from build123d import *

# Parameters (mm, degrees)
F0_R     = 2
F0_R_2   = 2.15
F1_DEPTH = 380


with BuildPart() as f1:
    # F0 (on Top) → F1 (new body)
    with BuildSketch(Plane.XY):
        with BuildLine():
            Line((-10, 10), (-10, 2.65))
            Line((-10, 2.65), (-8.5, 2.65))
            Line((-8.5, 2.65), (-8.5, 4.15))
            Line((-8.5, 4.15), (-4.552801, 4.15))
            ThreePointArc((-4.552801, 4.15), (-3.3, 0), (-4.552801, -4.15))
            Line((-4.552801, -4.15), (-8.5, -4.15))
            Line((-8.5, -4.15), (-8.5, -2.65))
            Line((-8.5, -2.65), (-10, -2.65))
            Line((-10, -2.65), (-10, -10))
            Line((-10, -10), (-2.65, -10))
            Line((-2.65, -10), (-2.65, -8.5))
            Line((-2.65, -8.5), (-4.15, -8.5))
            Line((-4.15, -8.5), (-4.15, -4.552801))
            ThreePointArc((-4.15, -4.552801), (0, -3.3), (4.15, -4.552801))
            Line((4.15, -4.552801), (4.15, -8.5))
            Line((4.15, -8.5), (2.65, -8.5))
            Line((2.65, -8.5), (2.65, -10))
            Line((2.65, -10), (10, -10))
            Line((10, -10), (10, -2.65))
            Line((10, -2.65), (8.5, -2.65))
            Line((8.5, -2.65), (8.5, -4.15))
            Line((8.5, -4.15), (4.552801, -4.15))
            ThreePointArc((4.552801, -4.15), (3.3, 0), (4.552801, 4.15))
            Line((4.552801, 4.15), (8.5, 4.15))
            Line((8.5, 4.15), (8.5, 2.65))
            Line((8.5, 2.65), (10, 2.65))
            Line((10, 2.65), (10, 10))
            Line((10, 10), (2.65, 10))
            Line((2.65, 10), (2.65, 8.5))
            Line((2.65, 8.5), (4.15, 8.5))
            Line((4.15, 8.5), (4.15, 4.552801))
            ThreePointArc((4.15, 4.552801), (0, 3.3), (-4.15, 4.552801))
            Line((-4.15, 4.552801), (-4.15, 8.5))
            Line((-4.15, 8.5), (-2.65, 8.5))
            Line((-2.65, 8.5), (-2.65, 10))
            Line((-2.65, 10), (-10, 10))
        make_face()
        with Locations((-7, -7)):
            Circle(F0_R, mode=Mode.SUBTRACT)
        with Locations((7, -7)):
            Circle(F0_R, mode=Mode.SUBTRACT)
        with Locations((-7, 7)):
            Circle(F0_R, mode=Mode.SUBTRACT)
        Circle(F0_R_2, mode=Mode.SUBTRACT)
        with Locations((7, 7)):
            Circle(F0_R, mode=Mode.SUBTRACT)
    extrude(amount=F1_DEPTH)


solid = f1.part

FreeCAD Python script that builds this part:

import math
import FreeCAD as App
import Part
import Sketcher

V = App.Vector
Q = App.Units.Quantity

doc = App.newDocument("Part")
params = doc.addObject("Spreadsheet::Sheet", "Params")
for row, (alias, value) in enumerate([
    ("sketch1_diameter", "4 mm"),
    ("sketch1_diameter2", "4.3 mm"),
    ("sketch1_radius", "7.499998 mm"),
    ("sketch1_width", "1.5 mm"),
    ("sketch1_width2", "7.35 mm"),
    ("pad1_length", "380 mm"),
], start=1):
    params.set(f"A{row}", alias)
    params.set(f"B{row}", "=" + value)
    params.setAlias(f"B{row}", alias)

body = doc.addObject("PartDesign::Body", "Body")

# Sketch on XY plane
sketch1 = body.newObject("Sketcher::SketchObject", "Sketch")
sketch1.AttachmentSupport = (doc.getObject("XY_Plane"), [""])
sketch1.MapMode = "FlatFace"
sketch1.addGeometry([
    Part.LineSegment(V(-10, 10, 0), V(-10, 2.6, 0)),  # 0
    Part.LineSegment(V(-10, 2.6, 0), V(-8.5, 2.6, 0)),  # 1
    Part.LineSegment(V(-8.5, 2.6, 0), V(-8.5, 4.2, 0)),  # 2
    Part.LineSegment(V(-8.5, 4.2, 0), V(-4.6, 4.2, 0)),  # 3
    Part.ArcOfCircle(Part.Circle(V(-10.8, 0, 0), V(0, 0, 1), 7.5), math.radians(-34), math.radians(34)),  # 4
    Part.LineSegment(V(-4.6, -4.2, 0), V(-8.5, -4.2, 0)),  # 5
    Part.LineSegment(V(-8.5, -4.2, 0), V(-8.5, -2.6, 0)),  # 6
    Part.LineSegment(V(-8.5, -2.6, 0), V(-10, -2.6, 0)),  # 7
    Part.LineSegment(V(-10, -2.6, 0), V(-10, -10, 0)),  # 8
    Part.LineSegment(V(-10, -10, 0), V(-2.6, -10, 0)),  # 9
    Part.LineSegment(V(-2.6, -10, 0), V(-2.6, -8.5, 0)),  # 10
    Part.LineSegment(V(-2.6, -8.5, 0), V(-4.2, -8.5, 0)),  # 11
    Part.LineSegment(V(-4.2, -8.5, 0), V(-4.2, -4.6, 0)),  # 12
    Part.ArcOfCircle(Part.Circle(V(0, -10.8, 0), V(0, 0, 1), 7.5), math.radians(56), math.radians(124)),  # 13
    Part.LineSegment(V(4.2, -4.6, 0), V(4.2, -8.5, 0)),  # 14
    Part.LineSegment(V(4.2, -8.5, 0), V(2.6, -8.5, 0)),  # 15
    Part.LineSegment(V(2.6, -8.5, 0), V(2.6, -10, 0)),  # 16
    Part.LineSegment(V(2.6, -10, 0), V(10, -10, 0)),  # 17
    Part.LineSegment(V(10, -10, 0), V(10, -2.6, 0)),  # 18
    Part.LineSegment(V(10, -2.6, 0), V(8.5, -2.6, 0)),  # 19
    Part.LineSegment(V(8.5, -2.6, 0), V(8.5, -4.2, 0)),  # 20
    Part.LineSegment(V(8.5, -4.2, 0), V(4.6, -4.2, 0)),  # 21
    Part.ArcOfCircle(Part.Circle(V(10.8, 0, 0), V(0, 0, 1), 7.5), math.radians(146), math.radians(214)),  # 22
    Part.LineSegment(V(4.6, 4.2, 0), V(8.5, 4.2, 0)),  # 23
    Part.LineSegment(V(8.5, 4.2, 0), V(8.5, 2.6, 0)),  # 24
    Part.LineSegment(V(8.5, 2.6, 0), V(10, 2.6, 0)),  # 25
    Part.LineSegment(V(10, 2.6, 0), V(10, 10, 0)),  # 26
    Part.LineSegment(V(10, 10, 0), V(2.6, 10, 0)),  # 27
    Part.LineSegment(V(2.6, 10, 0), V(2.6, 8.5, 0)),  # 28
    Part.LineSegment(V(2.6, 8.5, 0), V(4.2, 8.5, 0)),  # 29
    Part.LineSegment(V(4.2, 8.5, 0), V(4.2, 4.6, 0)),  # 30
    Part.ArcOfCircle(Part.Circle(V(0, 10.8, 0), V(0, 0, 1), 7.5), math.radians(-124), math.radians(-56)),  # 31
    Part.LineSegment(V(-4.2, 4.6, 0), V(-4.2, 8.5, 0)),  # 32
    Part.LineSegment(V(-4.2, 8.5, 0), V(-2.6, 8.5, 0)),  # 33
    Part.LineSegment(V(-2.6, 8.5, 0), V(-2.6, 10, 0)),  # 34
    Part.LineSegment(V(-2.6, 10, 0), V(-10, 10, 0)),  # 35
    Part.Circle(V(-7, -7, 0), V(0, 0, 1), 2),  # 36
    Part.Circle(V(7, -7, 0), V(0, 0, 1), 2),  # 37
    Part.Circle(V(-7, 7, 0), V(0, 0, 1), 2),  # 38
    Part.Circle(V(0, 0, 0), V(0, 0, 1), 2.1),  # 39
    Part.Circle(V(7, 7, 0), V(0, 0, 1), 2),  # 40
], False)
sketch1.addConstraint([
    Sketcher.Constraint("Coincident", 0, 2, 1, 1),
    Sketcher.Constraint("Coincident", 1, 2, 2, 1),
    Sketcher.Constraint("Coincident", 2, 2, 3, 1),
    Sketcher.Constraint("Coincident", 3, 2, 4, 2),
    Sketcher.Constraint("Coincident", 4, 1, 5, 1),
    Sketcher.Constraint("Coincident", 5, 2, 6, 1),
    Sketcher.Constraint("Coincident", 6, 2, 7, 1),
    Sketcher.Constraint("Coincident", 7, 2, 8, 1),
    Sketcher.Constraint("Coincident", 8, 2, 9, 1),
    Sketcher.Constraint("Coincident", 9, 2, 10, 1),
    Sketcher.Constraint("Coincident", 10, 2, 11, 1),
    Sketcher.Constraint("Coincident", 11, 2, 12, 1),
    Sketcher.Constraint("Coincident", 12, 2, 13, 2),
    Sketcher.Constraint("Coincident", 13, 1, 14, 1),
    Sketcher.Constraint("Coincident", 14, 2, 15, 1),
    Sketcher.Constraint("Coincident", 15, 2, 16, 1),
    Sketcher.Constraint("Coincident", 16, 2, 17, 1),
    Sketcher.Constraint("Coincident", 17, 2, 18, 1),
    Sketcher.Constraint("Coincident", 18, 2, 19, 1),
    Sketcher.Constraint("Coincident", 19, 2, 20, 1),
    Sketcher.Constraint("Coincident", 20, 2, 21, 1),
    Sketcher.Constraint("Coincident", 21, 2, 22, 2),
    Sketcher.Constraint("Coincident", 22, 1, 23, 1),
    Sketcher.Constraint("Coincident", 23, 2, 24, 1),
    Sketcher.Constraint("Coincident", 24, 2, 25, 1),
    Sketcher.Constraint("Coincident", 25, 2, 26, 1),
    Sketcher.Constraint("Coincident", 26, 2, 27, 1),
    Sketcher.Constraint("Coincident", 27, 2, 28, 1),
    Sketcher.Constraint("Coincident", 28, 2, 29, 1),
    Sketcher.Constraint("Coincident", 29, 2, 30, 1),
    Sketcher.Constraint("Coincident", 30, 2, 31, 2),
    Sketcher.Constraint("Coincident", 31, 1, 32, 1),
    Sketcher.Constraint("Coincident", 32, 2, 33, 1),
    Sketcher.Constraint("Coincident", 33, 2, 34, 1),
    Sketcher.Constraint("Coincident", 34, 2, 35, 1),
    Sketcher.Constraint("Coincident", 35, 2, 0, 1),
    Sketcher.Constraint("Vertical", 0),
    Sketcher.Constraint("Horizontal", 1),
    Sketcher.Constraint("Vertical", 2),
    Sketcher.Constraint("Horizontal", 3),
    Sketcher.Constraint("Horizontal", 5),
    Sketcher.Constraint("Vertical", 6),
    Sketcher.Constraint("Horizontal", 7),
    Sketcher.Constraint("Vertical", 8),
    Sketcher.Constraint("Horizontal", 9),
    Sketcher.Constraint("Vertical", 10),
    Sketcher.Constraint("Horizontal", 11),
    Sketcher.Constraint("Vertical", 12),
    Sketcher.Constraint("Vertical", 14),
    Sketcher.Constraint("Horizontal", 15),
    Sketcher.Constraint("Vertical", 16),
    Sketcher.Constraint("Horizontal", 17),
    Sketcher.Constraint("Vertical", 18),
    Sketcher.Constraint("Horizontal", 19),
    Sketcher.Constraint("Vertical", 20),
    Sketcher.Constraint("Horizontal", 21),
    Sketcher.Constraint("Horizontal", 23),
    Sketcher.Constraint("Vertical", 24),
    Sketcher.Constraint("Horizontal", 25),
    Sketcher.Constraint("Vertical", 26),
    Sketcher.Constraint("Horizontal", 27),
    Sketcher.Constraint("Vertical", 28),
    Sketcher.Constraint("Horizontal", 29),
    Sketcher.Constraint("Vertical", 30),
    Sketcher.Constraint("Vertical", 32),
    Sketcher.Constraint("Horizontal", 33),
    Sketcher.Constraint("Vertical", 34),
    Sketcher.Constraint("Horizontal", 35),
    Sketcher.Constraint("Coincident", 39, 3, -1, 1),
    Sketcher.Constraint("Equal", 4, 13),
    Sketcher.Constraint("Equal", 13, 22),
    Sketcher.Constraint("Equal", 22, 31),
    Sketcher.Constraint("Equal", 36, 37),
    Sketcher.Constraint("Equal", 37, 38),
    Sketcher.Constraint("Equal", 38, 40),
    Sketcher.Constraint("Symmetric", 4, 3, 22, 3, -1, 1),
    Sketcher.Constraint("Symmetric", 13, 3, 31, 3, -1, 1),
    Sketcher.Constraint("Symmetric", 37, 3, 38, 3, -1, 1),
    Sketcher.Constraint("Symmetric", 36, 3, 40, 3, -1, 1),
    Sketcher.Constraint("Symmetric", 0, 2, 18, 2, -1, 1),
    Sketcher.Constraint("Symmetric", 2, 2, 20, 2, -1, 1),
    Sketcher.Constraint("Symmetric", 5, 2, 23, 2, -1, 1),
    Sketcher.Constraint("Symmetric", 7, 2, 25, 2, -1, 1),
    Sketcher.Constraint("Symmetric", 9, 2, 27, 2, -1, 1),
    Sketcher.Constraint("Symmetric", 11, 2, 29, 2, -1, 1),
    Sketcher.Constraint("Symmetric", 14, 2, 32, 2, -1, 1),
    Sketcher.Constraint("Symmetric", 16, 2, 34, 2, -1, 1),
    Sketcher.Constraint("Symmetric", 36, 3, 37, 3, -2),
    Sketcher.Constraint("Symmetric", 12, 2, 13, 1, -2),
    Sketcher.Constraint("Symmetric", 10, 2, 15, 2, -2),
    Sketcher.Constraint("Symmetric", 8, 2, 17, 2, -2),
    Sketcher.Constraint("Symmetric", 6, 2, 19, 2, -2),
    Sketcher.Constraint("Symmetric", 4, 1, 21, 2, -2),
    Sketcher.Constraint("Equal", 7, 11),
    Sketcher.Constraint("Equal", 35, 0),
    Sketcher.Constraint("Equal", 33, 2),
    Sketcher.Constraint("Equal", 6, 10),
    Sketcher.Constraint("Equal", 23, 12),
    Sketcher.Constraint("Diameter", 36, Q("4 mm")),
    Sketcher.Constraint("Diameter", 39, Q("4.3 mm")),
    Sketcher.Constraint("Radius", 4, Q("7.499998 mm")),
    Sketcher.Constraint("DistanceX", 1, 1, 1, 2, Q("1.5 mm")),
    Sketcher.Constraint("DistanceX", 36, 3, -1, 1, Q("7 mm")),
    Sketcher.Constraint("DistanceY", 36, 3, -1, 1, Q("7 mm")),
    Sketcher.Constraint("DistanceX", 0, 2, -1, 1, Q("10 mm")),
    Sketcher.Constraint("DistanceY", 8, 2, -1, 1, Q("10 mm")),
    Sketcher.Constraint("DistanceX", 9, 1, 9, 2, Q("7.35 mm")),
    Sketcher.Constraint("DistanceX", 4, 3, -1, 1, Q("10.799998 mm")),
])
sketch1.setExpression("Constraints[98]", "Params.sketch1_diameter")
sketch1.setExpression("Constraints[99]", "Params.sketch1_diameter2")
sketch1.setExpression("Constraints[100]", "Params.sketch1_radius")
sketch1.setExpression("Constraints[101]", "Params.sketch1_width")
sketch1.setExpression("Constraints[106]", "Params.sketch1_width2")
pad1 = body.newObject("PartDesign::Pad", "Pad")
pad1.Profile = sketch1
pad1.setExpression("Length", "Params.pad1_length")

doc.recompute()
